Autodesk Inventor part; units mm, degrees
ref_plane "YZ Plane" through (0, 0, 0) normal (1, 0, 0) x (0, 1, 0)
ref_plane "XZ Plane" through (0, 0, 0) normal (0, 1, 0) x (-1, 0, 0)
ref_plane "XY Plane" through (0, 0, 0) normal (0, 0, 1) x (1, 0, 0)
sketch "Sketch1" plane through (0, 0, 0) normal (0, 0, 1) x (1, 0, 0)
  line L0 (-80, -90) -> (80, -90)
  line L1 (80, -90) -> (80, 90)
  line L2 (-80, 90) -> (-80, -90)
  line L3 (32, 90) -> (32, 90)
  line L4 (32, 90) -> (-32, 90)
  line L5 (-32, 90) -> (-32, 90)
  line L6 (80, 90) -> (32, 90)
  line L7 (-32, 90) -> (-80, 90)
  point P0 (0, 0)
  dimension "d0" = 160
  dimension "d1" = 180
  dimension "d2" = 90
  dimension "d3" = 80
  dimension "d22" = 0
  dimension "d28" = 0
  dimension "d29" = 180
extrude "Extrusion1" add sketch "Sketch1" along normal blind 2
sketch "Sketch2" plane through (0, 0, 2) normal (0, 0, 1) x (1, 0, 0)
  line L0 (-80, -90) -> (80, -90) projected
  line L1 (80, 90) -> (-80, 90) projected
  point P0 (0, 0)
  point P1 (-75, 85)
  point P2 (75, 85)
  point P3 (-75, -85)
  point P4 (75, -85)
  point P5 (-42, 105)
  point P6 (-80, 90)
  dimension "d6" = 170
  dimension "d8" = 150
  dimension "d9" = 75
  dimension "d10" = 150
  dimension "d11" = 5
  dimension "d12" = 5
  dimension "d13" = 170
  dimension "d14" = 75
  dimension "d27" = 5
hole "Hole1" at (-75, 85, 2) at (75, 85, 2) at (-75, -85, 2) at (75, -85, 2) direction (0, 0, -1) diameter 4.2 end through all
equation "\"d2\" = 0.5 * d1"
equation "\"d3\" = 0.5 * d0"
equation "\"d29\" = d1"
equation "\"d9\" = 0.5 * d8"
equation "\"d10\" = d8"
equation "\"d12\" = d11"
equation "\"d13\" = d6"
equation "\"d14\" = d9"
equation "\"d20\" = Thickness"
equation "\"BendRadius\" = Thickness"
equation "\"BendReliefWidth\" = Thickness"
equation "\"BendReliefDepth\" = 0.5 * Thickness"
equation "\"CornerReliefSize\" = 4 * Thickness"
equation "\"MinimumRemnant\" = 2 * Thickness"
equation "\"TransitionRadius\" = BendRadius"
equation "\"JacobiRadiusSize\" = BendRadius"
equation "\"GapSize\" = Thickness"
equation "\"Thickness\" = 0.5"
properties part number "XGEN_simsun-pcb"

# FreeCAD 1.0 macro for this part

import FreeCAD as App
import Part
import Sketcher
from FreeCAD import Vector

doc = App.newDocument("Part")
body = doc.addObject("PartDesign::Body", "Body")

# Sketch on XY plane
sketch1 = doc.addObject("Sketcher::SketchObject", "Sketch")
body.addObject(sketch1)
sketch1.AttachmentSupport = (doc.XY_Plane, [""])
sketch1.MapMode = "FlatFace"
sketch1.addGeometry(Part.LineSegment(Vector(-80, 90, 0), Vector(-80, -90, 0)), False)
sketch1.addGeometry(Part.LineSegment(Vector(-80, -90, 0), Vector(80, -90, 0)), False)
sketch1.addGeometry(Part.LineSegment(Vector(80, -90, 0), Vector(80, 90, 0)), False)
sketch1.addGeometry(Part.LineSegment(Vector(80, 90, 0), Vector(-80, 90, 0)), False)
sketch1.addConstraint(Sketcher.Constraint("Coincident", 0, 2, 1, 1))
sketch1.addConstraint(Sketcher.Constraint("Coincident", 1, 2, 2, 1))
sketch1.addConstraint(Sketcher.Constraint("Coincident", 2, 2, 3, 1))
sketch1.addConstraint(Sketcher.Constraint("Coincident", 3, 2, 0, 1))
sketch1.addConstraint(Sketcher.Constraint("Vertical", 0))
sketch1.addConstraint(Sketcher.Constraint("Horizontal", 1))
sketch1.addConstraint(Sketcher.Constraint("Vertical", 2))
sketch1.addConstraint(Sketcher.Constraint("Horizontal", 3))
sketch1.addConstraint(Sketcher.Constraint("Symmetric", 0, 2, 2, 2, -1, 1))
sketch1.addConstraint(Sketcher.Constraint("DistanceX", 1, 1, 1, 2, 160.0))
sketch1.addConstraint(Sketcher.Constraint("DistanceY", 0, 2, 0, 1, 180.0))
pad1 = doc.addObject("PartDesign::Pad", "Pad")
body.addObject(pad1)
pad1.Profile = sketch1
pad1.Length = 2

# Sketch on XY plane
sketch2 = doc.addObject("Sketcher::SketchObject", "Sketch001")
body.addObject(sketch2)
sketch2.AttachmentSupport = (doc.XY_Plane, [""])
sketch2.MapMode = "FlatFace"
sketch2.AttachmentOffset = App.Placement(Vector(0, 0, 2), App.Rotation())
sketch2.addGeometry(Part.Circle(Vector(-75, 85, 0), Vector(0, 0, 1), 2.1), False)
sketch2.addGeometry(Part.Circle(Vector(75, 85, 0), Vector(0, 0, 1), 2.1), False)
sketch2.addGeometry(Part.Circle(Vector(-75, -85, 0), Vector(0, 0, 1), 2.1), False)
sketch2.addGeometry(Part.Circle(Vector(75, -85, 0), Vector(0, 0, 1), 2.1), False)
sketch2.addConstraint(Sketcher.Constraint("Equal", 0, 1))
sketch2.addConstraint(Sketcher.Constraint("Equal", 1, 2))
sketch2.addConstraint(Sketcher.Constraint("Equal", 2, 3))
sketch2.addConstraint(Sketcher.Constraint("Symmetric", 1, 3, 2, 3, -1, 1))
sketch2.addConstraint(Sketcher.Constraint("Symmetric", 0, 3, 3, 3, -1, 1))
sketch2.addConstraint(Sketcher.Constraint("Symmetric", 0, 3, 1, 3, -2))
sketch2.addConstraint(Sketcher.Constraint("Diameter", 0, 4.2))
sketch2.addConstraint(Sketcher.Constraint("DistanceX", 0, 3, -1, 1, 75.0))
sketch2.addConstraint(Sketcher.Constraint("DistanceY", -1, 1, 0, 3, 85.0))
doc.recompute()
hole = doc.addObject("PartDesign::Hole", "Hole")
body.addObject(hole)
hole.Profile = sketch2
hole.ThreadType = "None"
hole.Diameter = 4.2
hole.DepthType = "ThroughAll"

doc.recompute()
